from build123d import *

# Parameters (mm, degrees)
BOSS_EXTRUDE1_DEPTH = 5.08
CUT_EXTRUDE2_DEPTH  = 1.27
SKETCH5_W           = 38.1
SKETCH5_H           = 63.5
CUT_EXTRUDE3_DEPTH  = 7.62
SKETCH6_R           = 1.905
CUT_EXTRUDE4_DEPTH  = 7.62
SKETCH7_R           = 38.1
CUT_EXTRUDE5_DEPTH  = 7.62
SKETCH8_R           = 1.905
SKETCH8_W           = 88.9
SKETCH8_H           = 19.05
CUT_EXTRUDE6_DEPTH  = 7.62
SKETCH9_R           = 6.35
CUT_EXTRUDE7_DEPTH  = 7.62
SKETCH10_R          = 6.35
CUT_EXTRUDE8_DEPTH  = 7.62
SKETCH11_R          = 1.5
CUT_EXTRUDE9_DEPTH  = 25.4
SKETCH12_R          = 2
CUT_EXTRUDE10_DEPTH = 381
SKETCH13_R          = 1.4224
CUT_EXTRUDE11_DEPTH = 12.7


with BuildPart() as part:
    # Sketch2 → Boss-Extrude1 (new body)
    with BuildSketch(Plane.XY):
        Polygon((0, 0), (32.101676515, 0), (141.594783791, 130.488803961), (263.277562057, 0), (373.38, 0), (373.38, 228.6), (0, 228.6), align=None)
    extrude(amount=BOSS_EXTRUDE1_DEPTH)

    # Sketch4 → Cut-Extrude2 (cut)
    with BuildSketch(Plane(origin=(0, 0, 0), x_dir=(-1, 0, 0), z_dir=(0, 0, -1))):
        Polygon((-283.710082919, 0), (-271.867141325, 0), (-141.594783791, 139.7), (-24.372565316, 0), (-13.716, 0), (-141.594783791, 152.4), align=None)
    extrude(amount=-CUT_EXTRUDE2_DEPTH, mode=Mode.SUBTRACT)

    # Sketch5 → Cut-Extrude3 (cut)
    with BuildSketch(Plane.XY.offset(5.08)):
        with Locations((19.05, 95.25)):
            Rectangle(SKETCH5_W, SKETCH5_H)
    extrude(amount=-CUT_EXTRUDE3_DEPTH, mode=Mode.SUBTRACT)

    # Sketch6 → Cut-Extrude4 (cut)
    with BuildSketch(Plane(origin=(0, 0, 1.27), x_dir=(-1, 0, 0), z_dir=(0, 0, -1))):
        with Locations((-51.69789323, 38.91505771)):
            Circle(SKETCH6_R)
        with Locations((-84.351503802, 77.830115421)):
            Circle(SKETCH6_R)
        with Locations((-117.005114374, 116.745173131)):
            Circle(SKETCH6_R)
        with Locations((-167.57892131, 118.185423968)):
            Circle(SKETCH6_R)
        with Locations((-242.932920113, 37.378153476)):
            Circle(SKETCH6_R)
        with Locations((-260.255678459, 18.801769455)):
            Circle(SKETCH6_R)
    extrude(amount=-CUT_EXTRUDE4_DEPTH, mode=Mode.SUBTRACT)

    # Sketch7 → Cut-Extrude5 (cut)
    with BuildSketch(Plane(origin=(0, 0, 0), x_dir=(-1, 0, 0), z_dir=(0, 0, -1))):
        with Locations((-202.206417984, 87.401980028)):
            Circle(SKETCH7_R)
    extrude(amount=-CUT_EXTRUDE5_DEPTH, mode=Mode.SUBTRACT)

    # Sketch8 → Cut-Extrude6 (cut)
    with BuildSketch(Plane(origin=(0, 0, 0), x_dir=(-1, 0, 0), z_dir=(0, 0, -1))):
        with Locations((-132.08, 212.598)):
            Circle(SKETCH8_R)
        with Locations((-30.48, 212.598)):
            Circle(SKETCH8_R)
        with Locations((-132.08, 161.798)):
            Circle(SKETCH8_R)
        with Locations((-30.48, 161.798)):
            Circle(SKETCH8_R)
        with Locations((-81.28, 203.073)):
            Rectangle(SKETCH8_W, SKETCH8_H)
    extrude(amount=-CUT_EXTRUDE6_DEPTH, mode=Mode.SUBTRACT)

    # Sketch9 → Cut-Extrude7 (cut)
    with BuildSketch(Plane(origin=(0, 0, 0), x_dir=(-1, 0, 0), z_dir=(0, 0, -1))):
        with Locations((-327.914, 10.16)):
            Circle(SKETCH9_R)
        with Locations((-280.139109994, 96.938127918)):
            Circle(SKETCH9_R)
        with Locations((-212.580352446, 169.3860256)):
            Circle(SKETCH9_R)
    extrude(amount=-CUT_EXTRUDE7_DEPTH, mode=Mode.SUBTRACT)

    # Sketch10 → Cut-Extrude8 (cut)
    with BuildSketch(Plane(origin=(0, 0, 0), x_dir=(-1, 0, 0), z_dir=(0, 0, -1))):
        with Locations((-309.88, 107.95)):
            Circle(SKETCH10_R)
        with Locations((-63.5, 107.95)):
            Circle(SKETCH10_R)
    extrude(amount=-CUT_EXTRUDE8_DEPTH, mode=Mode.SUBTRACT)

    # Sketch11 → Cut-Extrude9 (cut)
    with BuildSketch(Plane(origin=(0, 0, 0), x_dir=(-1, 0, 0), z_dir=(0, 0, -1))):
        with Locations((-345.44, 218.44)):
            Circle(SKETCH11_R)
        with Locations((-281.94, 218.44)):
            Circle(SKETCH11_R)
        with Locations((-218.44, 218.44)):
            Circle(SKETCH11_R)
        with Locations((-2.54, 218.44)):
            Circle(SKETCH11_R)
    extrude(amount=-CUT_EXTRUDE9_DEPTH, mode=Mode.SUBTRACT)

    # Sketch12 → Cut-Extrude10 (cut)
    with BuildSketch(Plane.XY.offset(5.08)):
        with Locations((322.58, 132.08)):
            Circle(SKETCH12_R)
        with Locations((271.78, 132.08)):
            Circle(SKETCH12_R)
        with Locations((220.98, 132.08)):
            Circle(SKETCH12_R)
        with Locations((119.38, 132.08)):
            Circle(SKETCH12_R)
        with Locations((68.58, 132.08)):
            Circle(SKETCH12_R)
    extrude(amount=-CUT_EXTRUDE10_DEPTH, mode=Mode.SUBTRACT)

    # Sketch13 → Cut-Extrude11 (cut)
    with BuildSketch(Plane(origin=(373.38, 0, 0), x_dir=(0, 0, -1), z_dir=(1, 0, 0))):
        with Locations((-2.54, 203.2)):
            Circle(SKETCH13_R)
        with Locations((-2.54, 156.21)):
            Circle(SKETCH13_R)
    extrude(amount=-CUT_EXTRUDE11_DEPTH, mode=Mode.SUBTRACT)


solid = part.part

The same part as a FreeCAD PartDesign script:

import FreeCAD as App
import Part
import Sketcher

V = App.Vector
Q = App.Units.Quantity


def add_polygon(sketch, points):
    """Adds a closed chain of lines whose ends are joined by coincident constraints."""
    first, n = sketch.GeometryCount, len(points)
    for a, b in zip(points, points[1:] + points[:1]):
        sketch.addGeometry(Part.LineSegment(App.Vector(*a, 0), App.Vector(*b, 0)), False)
    for i in range(n):
        sketch.addConstraint(Sketcher.Constraint("Coincident", first + i, 2, first + (i + 1) % n, 1))

doc = App.newDocument("Part")
body = doc.addObject("PartDesign::Body", "Body")

# Sketch on XY plane
sketch1 = doc.addObject("Sketcher::SketchObject", "Sketch")
body.addObject(sketch1)
sketch1.AttachmentSupport = (doc.XY_Plane, [""])
sketch1.MapMode = "FlatFace"
add_polygon(sketch1, [(0, 0), (32, 0), (142, 130), (263, 0), (373, 0), (373, 229), (0, 229)])  # lines 0-6
sketch1.addConstraint(Sketcher.Constraint("Horizontal", 0))
sketch1.addConstraint(Sketcher.Constraint("Horizontal", 3))
sketch1.addConstraint(Sketcher.Constraint("Vertical", 4))
sketch1.addConstraint(Sketcher.Constraint("Horizontal", 5))
sketch1.addConstraint(Sketcher.Constraint("Vertical", 6))
sketch1.addConstraint(Sketcher.Constraint("Coincident", 6, 2, -1, 1))
sketch1.addConstraint(Sketcher.Constraint("PointOnObject", 2, 2, -1))
sketch1.addConstraint(Sketcher.Constraint("DistanceY", 4, 1, 4, 2, Q("9 in")))
sketch1.addConstraint(Sketcher.Constraint("DistanceX", 5, 2, 5, 1, Q("14.7 in")))
sketch1.addConstraint(Sketcher.Constraint("Angle", 1, Q("50 deg")))
sketch1.addConstraint(Sketcher.Constraint("Angle", 2, Q("-47 deg")))
sketch1.addConstraint(Sketcher.Constraint("DistanceX", 0, 1, 0, 2, 32.101677))
sketch1.addConstraint(Sketcher.Constraint("DistanceX", 3, 1, 3, 2, 110.102438))
pad1 = doc.addObject("PartDesign::Pad", "Pad")
body.addObject(pad1)
pad1.Profile = sketch1
pad1.Length = Q("0.2 in")

# Sketch on XY plane
sketch2 = doc.addObject("Sketcher::SketchObject", "Sketch001")
body.addObject(sketch2)
sketch2.AttachmentSupport = (doc.XY_Plane, [""])
sketch2.MapMode = "FlatFace"
add_polygon(sketch2, [(284, 0), (272, 0), (142, 140), (24, 0), (14, 0), (142, 152)])  # lines 0-5
sketch2.addConstraint(Sketcher.Constraint("Horizontal", 0))
sketch2.addConstraint(Sketcher.Constraint("Horizontal", 3))
sketch2.addConstraint(Sketcher.Constraint("PointOnObject", 0, 2, -1))
sketch2.addConstraint(Sketcher.Constraint("PointOnObject", 2, 2, -1))
sketch2.addConstraint(Sketcher.Constraint("Parallel", 2, 4))
sketch2.addConstraint(Sketcher.Constraint("Parallel", 1, 5))
sketch2.addConstraint(Sketcher.Constraint("Vertical", 1, 2, 4, 2))
sketch2.addConstraint(Sketcher.Constraint("DistanceY", -1, 1, 4, 2, Q("6 in")))
sketch2.addConstraint(Sketcher.Constraint("Angle", 1, Q("133 deg")))
sketch2.addConstraint(Sketcher.Constraint("Angle", 2, Q("-130 deg")))
sketch2.addConstraint(Sketcher.Constraint("DistanceY", -1, 1, 1, 2, Q("5.5 in")))
sketch2.addConstraint(Sketcher.Constraint("DistanceX", -1, 1, 3, 2, Q("0.54 in")))
pocket1 = doc.addObject("PartDesign::Pocket", "Pocket")
body.addObject(pocket1)
pocket1.Profile = sketch2
pocket1.Length = Q("0.05 in")
pocket1.Reversed = True

# Sketch on XY plane
sketch3 = doc.addObject("Sketcher::SketchObject", "Sketch002")
body.addObject(sketch3)
sketch3.AttachmentSupport = (doc.XY_Plane, [""])
sketch3.MapMode = "FlatFace"
sketch3.AttachmentOffset = App.Placement(V(0, 0, 0.2 * 25.4), App.Rotation())
add_polygon(sketch3, [(0, 127), (0, 64), (38, 64), (38, 127)])  # lines 0-3
sketch3.addConstraint(Sketcher.Constraint("Vertical", 0))
sketch3.addConstraint(Sketcher.Constraint("Horizontal", 1))
sketch3.addConstraint(Sketcher.Constraint("Vertical", 2))
sketch3.addConstraint(Sketcher.Constraint("Horizontal", 3))
sketch3.addConstraint(Sketcher.Constraint("PointOnObject", 0, 2, -2))
sketch3.addConstraint(Sketcher.Constraint("DistanceX", 1, 1, 1, 2, Q("1.5 in")))
sketch3.addConstraint(Sketcher.Constraint("DistanceY", 0, 2, 0, 1, Q("2.5 in")))
sketch3.addConstraint(Sketcher.Constraint("DistanceY", -1, 1, 2, 2, Q("5 in")))
pocket2 = doc.addObject("PartDesign::Pocket", "Pocket001")
body.addObject(pocket2)
pocket2.Profile = sketch3
pocket2.Length = Q("0.3 in")

# Sketch on XY plane
sketch4 = doc.addObject("Sketcher::SketchObject", "Sketch003")
body.addObject(sketch4)
sketch4.AttachmentSupport = (doc.XY_Plane, [""])
sketch4.MapMode = "FlatFace"
sketch4.AttachmentOffset = App.Placement(V(0, 0, 0.05 * 25.4), App.Rotation())
sketch4.addGeometry(Part.Circle(V(51.7, 38.9, 0), V(0, 0, 1), 1.9), False)
sketch4.addGeometry(Part.Circle(V(84.4, 77.8, 0), V(0, 0, 1), 1.9), False)
sketch4.addGeometry(Part.Circle(V(117, 116.7, 0), V(0, 0, 1), 1.9), False)
sketch4.addGeometry(Part.Circle(V(167.6, 118.2, 0), V(0, 0, 1), 1.9), False)
sketch4.addGeometry(Part.Circle(V(242.9, 37.4, 0), V(0, 0, 1), 1.9), False)
sketch4.addGeometry(Part.Circle(V(260.3, 18.8, 0), V(0, 0, 1), 1.9), False)
sketch4.addConstraint(Sketcher.Constraint("Equal", 0, 1))
sketch4.addConstraint(Sketcher.Constraint("Equal", 1, 2))
sketch4.addConstraint(Sketcher.Constraint("Equal", 2, 3))
sketch4.addConstraint(Sketcher.Constraint("Equal", 3, 4))
sketch4.addConstraint(Sketcher.Constraint("Equal", 4, 5))
sketch4.addConstraint(Sketcher.Constraint("Diameter", 0, Q("0.15 in")))
sketch4.addConstraint(Sketcher.Constraint("DistanceX", 3, 3, 4, 3, 75.353999))
sketch4.addConstraint(Sketcher.Constraint("DistanceX", -1, 1, 3, 3, 167.578921))
sketch4.addConstraint(Sketcher.Constraint("DistanceX", -1, 1, 5, 3, 260.255678))
sketch4.addConstraint(Sketcher.Constraint("DistanceY", -1, 1, 5, 3, 18.801769))
sketch4.addConstraint(Sketcher.Constraint("DistanceX", 0, 3, 1, 3, 32.653611))
sketch4.addConstraint(Sketcher.Constraint("DistanceX", 1, 3, 2, 3, 32.653611))
sketch4.addConstraint(Sketcher.Constraint("DistanceY", 2, 3, 3, 3, 1.440251))
sketch4.addConstraint(Sketcher.Constraint("DistanceY", 1, 3, 3, 3, 40.355309))
sketch4.addConstraint(Sketcher.Constraint("DistanceX", 0, 3, 3, 3, 115.881028))
sketch4.addConstraint(Sketcher.Constraint("DistanceY", 4, 3, 3, 3, 80.80727))
sketch4.addConstraint(Sketcher.Constraint("DistanceY", 5, 3, 0, 3, 20.113288))
sketch4.addConstraint(Sketcher.Constraint("DistanceY", -1, 1, 1, 3, 77.830115))
pocket3 = doc.addObject("PartDesign::Pocket", "Pocket002")
body.addObject(pocket3)
pocket3.Profile = sketch4
pocket3.Length = Q("0.3 in")
pocket3.Reversed = True

# Sketch on XY plane
sketch5 = doc.addObject("Sketcher::SketchObject", "Sketch004")
body.addObject(sketch5)
sketch5.AttachmentSupport = (doc.XY_Plane, [""])
sketch5.MapMode = "FlatFace"
sketch5.addGeometry(Part.Circle(V(202, 87, 0), V(0, 0, 1), 38), False)
sketch5.addConstraint(Sketcher.Constraint("Diameter", 0, Q("3 in")))
sketch5.addConstraint(Sketcher.Constraint("DistanceY", -1, 1, 0, 3, 87.40198))
sketch5.addConstraint(Sketcher.Constraint("DistanceX", -1, 1, 0, 3, 202.206418))
pocket4 = doc.addObject("PartDesign::Pocket", "Pocket003")
body.addObject(pocket4)
pocket4.Profile = sketch5
pocket4.Length = Q("0.3 in")
pocket4.Reversed = True

# Sketch on XY plane
sketch6 = doc.addObject("Sketcher::SketchObject", "Sketch005")
body.addObject(sketch6)
sketch6.AttachmentSupport = (doc.XY_Plane, [""])
sketch6.MapMode = "FlatFace"
sketch6.addGeometry(Part.Circle(V(132.1, 212.6, 0), V(0, 0, 1), 1.9), False)  # 0
sketch6.addGeometry(Part.Circle(V(30.5, 212.6, 0), V(0, 0, 1), 1.9), False)  # 1
sketch6.addGeometry(Part.Circle(V(132.1, 161.8, 0), V(0, 0, 1), 1.9), False)  # 2
sketch6.addGeometry(Part.Circle(V(30.5, 161.8, 0), V(0, 0, 1), 1.9), False)  # 3
add_polygon(sketch6, [(125.7, 212.6), (125.7, 193.5), (36.8, 193.5), (36.8, 212.6)])  # lines 4-7
sketch6.addConstraint(Sketcher.Constraint("Vertical", 4))
sketch6.addConstraint(Sketcher.Constraint("Horizontal", 5))
sketch6.addConstraint(Sketcher.Constraint("Vertical", 6))
sketch6.addConstraint(Sketcher.Constraint("Horizontal", 7))
sketch6.addConstraint(Sketcher.Constraint("Equal", 0, 1))
sketch6.addConstraint(Sketcher.Constraint("Equal", 1, 2))
sketch6.addConstraint(Sketcher.Constraint("Equal", 2, 3))
sketch6.addConstraint(Sketcher.Constraint("Horizontal", 0, 3, 1, 3))
sketch6.addConstraint(Sketcher.Constraint("Horizontal", 2, 3, 3, 3))
sketch6.addConstraint(Sketcher.Constraint("Horizontal", 1, 3, 6, 2))
sketch6.addConstraint(Sketcher.Constraint("Vertical", 0, 3, 2, 3))
sketch6.addConstraint(Sketcher.Constraint("Vertical", 1, 3, 3, 3))
sketch6.addConstraint(Sketcher.Constraint("Diameter", 0, Q("0.15 in")))
sketch6.addConstraint(Sketcher.Constraint("DistanceX", 5, 2, 5, 1, Q("3.5 in")))
sketch6.addConstraint(Sketcher.Constraint("DistanceX", 1, 3, 0, 3, Q("4 in")))
sketch6.addConstraint(Sketcher.Constraint("DistanceY", 2, 3, 0, 3, Q("2 in")))
sketch6.addConstraint(Sketcher.Constraint("DistanceY", 4, 2, 4, 1, Q("0.75 in")))
sketch6.addConstraint(Sketcher.Constraint("DistanceX", -1, 1, 0, 3, Q("5.2 in")))
sketch6.addConstraint(Sketcher.Constraint("DistanceY", -1, 1, 0, 3, Q("8.37 in")))
sketch6.addConstraint(Sketcher.Constraint("DistanceX", -1, 1, 4, 2, Q("4.95 in")))
pocket5 = doc.addObject("PartDesign::Pocket", "Pocket004")
body.addObject(pocket5)
pocket5.Profile = sketch6
pocket5.Length = Q("0.3 in")
pocket5.Reversed = True

# Sketch on XY plane
sketch7 = doc.addObject("Sketcher::SketchObject", "Sketch006")
body.addObject(sketch7)
sketch7.AttachmentSupport = (doc.XY_Plane, [""])
sketch7.MapMode = "FlatFace"
sketch7.addGeometry(Part.Circle(V(328, 10, 0), V(0, 0, 1), 6), False)
sketch7.addGeometry(Part.Circle(V(280, 97, 0), V(0, 0, 1), 6), False)
sketch7.addGeometry(Part.Circle(V(213, 169, 0), V(0, 0, 1), 6), False)
sketch7.addConstraint(Sketcher.Constraint("Equal", 0, 1))
sketch7.addConstraint(Sketcher.Constraint("Equal", 1, 2))
sketch7.addConstraint(Sketcher.Constraint("Diameter", 0, Q("0.5 in")))
sketch7.addConstraint(Sketcher.Constraint("DistanceY", -1, 1, 0, 3, Q("0.4 in")))
sketch7.addConstraint(Sketcher.Constraint("DistanceX", -1, 1, 0, 3, Q("12.91 in")))
sketch7.addConstraint(Sketcher.Constraint("DistanceX", -1, 1, 1, 3, 280.13911))
sketch7.addConstraint(Sketcher.Constraint("DistanceY", -1, 1, 1, 3, 96.938128))
sketch7.addConstraint(Sketcher.Constraint("DistanceX", -1, 1, 2, 3, 212.580352))
sketch7.addConstraint(Sketcher.Constraint("DistanceY", -1, 1, 2, 3, 169.386026))
pocket6 = doc.addObject("PartDesign::Pocket", "Pocket005")
body.addObject(pocket6)
pocket6.Profile = sketch7
pocket6.Length = Q("0.3 in")
pocket6.Reversed = True

# Sketch on XY plane
sketch8 = doc.addObject("Sketcher::SketchObject", "Sketch007")
body.addObject(sketch8)
sketch8.AttachmentSupport = (doc.XY_Plane, [""])
sketch8.MapMode = "FlatFace"
sketch8.addGeometry(Part.Circle(V(310, 108, 0), V(0, 0, 1), 6), False)
sketch8.addGeometry(Part.Circle(V(64, 108, 0), V(0, 0, 1), 6), False)
sketch8.addConstraint(Sketcher.Constraint("Equal", 0, 1))
sketch8.addConstraint(Sketcher.Constraint("Horizontal", 0, 3, 1, 3))
sketch8.addConstraint(Sketcher.Constraint("Diameter", 0, Q("0.5 in")))
sketch8.addConstraint(Sketcher.Constraint("DistanceX", -1, 1, 0, 3, Q("12.2 in")))
sketch8.addConstraint(Sketcher.Constraint("DistanceX", -1, 1, 1, 3, Q("2.5 in")))
sketch8.addConstraint(Sketcher.Constraint("DistanceY", -1, 1, 0, 3, Q("4.25 in")))
pocket7 = doc.addObject("PartDesign::Pocket", "Pocket006")
body.addObject(pocket7)
pocket7.Profile = sketch8
pocket7.Length = Q("0.3 in")
pocket7.Reversed = True

# Sketch on XY plane
sketch9 = doc.addObject("Sketcher::SketchObject", "Sketch008")
body.addObject(sketch9)
sketch9.AttachmentSupport = (doc.XY_Plane, [""])
sketch9.MapMode = "FlatFace"
sketch9.addGeometry(Part.Circle(V(345.4, 218.4, 0), V(0, 0, 1), 1.5), False)
sketch9.addGeometry(Part.Circle(V(281.9, 218.4, 0), V(0, 0, 1), 1.5), False)
sketch9.addGeometry(Part.Circle(V(218.4, 218.4, 0), V(0, 0, 1), 1.5), False)
sketch9.addGeometry(Part.Circle(V(2.5, 218.4, 0), V(0, 0, 1), 1.5), False)
sketch9.addConstraint(Sketcher.Constraint("Equal", 0, 1))
sketch9.addConstraint(Sketcher.Constraint("Equal", 1, 2))
sketch9.addConstraint(Sketcher.Constraint("Equal", 2, 3))
sketch9.addConstraint(Sketcher.Constraint("Horizontal", 0, 3, 1, 3))
sketch9.addConstraint(Sketcher.Constraint("Horizontal", 1, 3, 2, 3))
sketch9.addConstraint(Sketcher.Constraint("Horizontal", 2, 3, 3, 3))
sketch9.addConstraint(Sketcher.Constraint("DistanceX", 2, 3, 0, 3, Q("5 in")))
sketch9.addConstraint(Sketcher.Constraint("DistanceX", 3, 3, 1, 3, Q("11 in")))
sketch9.addConstraint(Sketcher.Constraint("DistanceX", -1, 1, 0, 3, Q("13.6 in")))
sketch9.addConstraint(Sketcher.Constraint("DistanceY", -1, 1, 0, 3, Q("8.6 in")))
sketch9.addConstraint(Sketcher.Constraint("DistanceX", -1, 1, 1, 3, Q("11.1 in")))
sketch9.addConstraint(Sketcher.Constraint("Diameter", 0, 3.0))
pocket8 = doc.addObject("PartDesign::Pocket", "Pocket007")
body.addObject(pocket8)
pocket8.Profile = sketch9
pocket8.Length = Q("1 in")
pocket8.Reversed = True

# Sketch on XY plane
sketch10 = doc.addObject("Sketcher::SketchObject", "Sketch009")
body.addObject(sketch10)
sketch10.AttachmentSupport = (doc.XY_Plane, [""])
sketch10.MapMode = "FlatFace"
sketch10.AttachmentOffset = App.Placement(V(0, 0, 0.2 * 25.4), App.Rotation())
sketch10.addGeometry(Part.Circle(V(322.6, 132.1, 0), V(0, 0, 1), 2), False)
sketch10.addGeometry(Part.Circle(V(271.8, 132.1, 0), V(0, 0, 1), 2), False)
sketch10.addGeometry(Part.Circle(V(221, 132.1, 0), V(0, 0, 1), 2), False)
sketch10.addGeometry(Part.Circle(V(119.4, 132.1, 0), V(0, 0, 1), 2), False)
sketch10.addGeometry(Part.Circle(V(68.6, 132.1, 0), V(0, 0, 1), 2), False)
sketch10.addConstraint(Sketcher.Constraint("Equal", 0, 1))
sketch10.addConstraint(Sketcher.Constraint("Equal", 1, 2))
sketch10.addConstraint(Sketcher.Constraint("Equal", 2, 3))
sketch10.addConstraint(Sketcher.Constraint("Equal", 3, 4))
sketch10.addConstraint(Sketcher.Constraint("Horizontal", 0, 3, 1, 3))
sketch10.addConstraint(Sketcher.Constraint("Horizontal", 1, 3, 2, 3))
sketch10.addConstraint(Sketcher.Constraint("Horizontal", 2, 3, 3, 3))
sketch10.addConstraint(Sketcher.Constraint("Horizontal", 3, 3, 4, 3))
sketch10.addConstraint(Sketcher.Constraint("DistanceX", 1, 3, 0, 3, Q("2 in")))
sketch10.addConstraint(Sketcher.Constraint("DistanceX", 2, 3, 1, 3, Q("2 in")))
sketch10.addConstraint(Sketcher.Constraint("DistanceX", 3, 3, 2, 3, Q("4 in")))
sketch10.addConstraint(Sketcher.Constraint("DistanceX", 4, 3, 3, 3, Q("2 in")))
sketch10.addConstraint(Sketcher.Constraint("DistanceX", -1, 1, 0, 3, Q("12.7 in")))
sketch10.addConstraint(Sketcher.Constraint("DistanceY", -1, 1, 0, 3, Q("5.2 in")))
sketch10.addConstraint(Sketcher.Constraint("Diameter", 0, 4.0))
pocket9 = doc.addObject("PartDesign::Pocket", "Pocket008")
body.addObject(pocket9)
pocket9.Profile = sketch10
pocket9.Length = Q("15 in")

# Sketch on YZ plane
sketch11 = doc.addObject("Sketcher::SketchObject", "Sketch010")
body.addObject(sketch11)
sketch11.AttachmentSupport = (doc.YZ_Plane, [""])
sketch11.MapMode = "FlatFace"
sketch11.AttachmentOffset = App.Placement(V(0, 0, 14.7 * 25.4), App.Rotation())
sketch11.addGeometry(Part.Circle(V(203.2, 2.5, 0), V(0, 0, 1), 1.4), False)
sketch11.addGeometry(Part.Circle(V(156.2, 2.5, 0), V(0, 0, 1), 1.4), False)
sketch11.addConstraint(Sketcher.Constraint("Equal", 0, 1))
sketch11.addConstraint(Sketcher.Constraint("Horizontal", 0, 3, 1, 3))
sketch11.addConstraint(Sketcher.Constraint("Diameter", 0, Q("0.112 in")))
sketch11.addConstraint(Sketcher.Constraint("DistanceX", -1, 1, 0, 3, Q("8 in")))
sketch11.addConstraint(Sketcher.Constraint("DistanceY", -1, 1, 0, 3, Q("0.1 in")))
sketch11.addConstraint(Sketcher.Constraint("DistanceX", -1, 1, 1, 3, Q("6.15 in")))
pocket10 = doc.addObject("PartDesign::Pocket", "Pocket009")
body.addObject(pocket10)
pocket10.Profile = sketch11
pocket10.Length = Q("0.5 in")

doc.recompute()
